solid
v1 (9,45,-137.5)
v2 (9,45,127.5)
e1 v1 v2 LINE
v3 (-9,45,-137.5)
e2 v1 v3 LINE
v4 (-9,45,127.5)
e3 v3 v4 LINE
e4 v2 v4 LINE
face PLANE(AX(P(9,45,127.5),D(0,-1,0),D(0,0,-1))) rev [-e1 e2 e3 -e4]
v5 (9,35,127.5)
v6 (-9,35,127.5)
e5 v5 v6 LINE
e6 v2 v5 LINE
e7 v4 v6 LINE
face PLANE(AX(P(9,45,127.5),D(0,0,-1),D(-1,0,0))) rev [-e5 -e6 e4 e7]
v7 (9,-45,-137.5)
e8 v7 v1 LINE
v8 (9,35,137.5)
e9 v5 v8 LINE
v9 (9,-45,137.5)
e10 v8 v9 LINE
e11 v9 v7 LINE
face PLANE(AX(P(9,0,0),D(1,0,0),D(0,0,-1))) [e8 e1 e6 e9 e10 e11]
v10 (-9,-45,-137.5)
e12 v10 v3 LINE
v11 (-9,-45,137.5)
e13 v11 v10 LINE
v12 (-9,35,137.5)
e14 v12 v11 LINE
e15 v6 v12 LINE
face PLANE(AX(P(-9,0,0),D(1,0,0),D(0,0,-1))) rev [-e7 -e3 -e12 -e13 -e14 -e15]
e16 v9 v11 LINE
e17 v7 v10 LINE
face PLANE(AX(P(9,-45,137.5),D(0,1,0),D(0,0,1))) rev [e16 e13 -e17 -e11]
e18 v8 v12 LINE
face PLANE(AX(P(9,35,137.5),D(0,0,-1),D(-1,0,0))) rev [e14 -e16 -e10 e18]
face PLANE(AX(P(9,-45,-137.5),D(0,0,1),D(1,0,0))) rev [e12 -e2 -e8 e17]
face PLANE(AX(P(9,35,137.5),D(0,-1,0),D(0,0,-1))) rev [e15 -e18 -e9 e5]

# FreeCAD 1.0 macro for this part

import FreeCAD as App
import Part
import Sketcher

V = App.Vector
Q = App.Units.Quantity

doc = App.newDocument("Part")
body = doc.addObject("PartDesign::Body", "Body")

# Sketch on YZ plane
sketch1 = doc.addObject("Sketcher::SketchObject", "Sketch")
body.addObject(sketch1)
sketch1.AttachmentSupport = (doc.YZ_Plane, [""])
sketch1.MapMode = "FlatFace"
sketch1.addGeometry(Part.LineSegment(V(35, 137.5, 0), V(-45, 137.5, 0)), False)
sketch1.addGeometry(Part.LineSegment(V(-45, 137.5, 0), V(-45, -137.5, 0)), False)
sketch1.addGeometry(Part.LineSegment(V(-45, -137.5, 0), V(45, -137.5, 0)), False)
sketch1.addGeometry(Part.LineSegment(V(45, -137.5, 0), V(45, 127.5, 0)), False)
sketch1.addGeometry(Part.LineSegment(V(45, 127.5, 0), V(35, 127.5, 0)), False)
sketch1.addGeometry(Part.LineSegment(V(35, 127.5, 0), V(35, 137.5, 0)), False)
sketch1.addConstraint(Sketcher.Constraint("Coincident", 0, 2, 1, 1))
sketch1.addConstraint(Sketcher.Constraint("Coincident", 1, 2, 2, 1))
sketch1.addConstraint(Sketcher.Constraint("Coincident", 2, 2, 3, 1))
sketch1.addConstraint(Sketcher.Constraint("Coincident", 3, 2, 4, 1))
sketch1.addConstraint(Sketcher.Constraint("Coincident", 4, 2, 5, 1))
sketch1.addConstraint(Sketcher.Constraint("Coincident", 5, 2, 0, 1))
sketch1.addConstraint(Sketcher.Constraint("Horizontal", 0))
sketch1.addConstraint(Sketcher.Constraint("Vertical", 1))
sketch1.addConstraint(Sketcher.Constraint("Horizontal", 2))
sketch1.addConstraint(Sketcher.Constraint("Vertical", 3))
sketch1.addConstraint(Sketcher.Constraint("Horizontal", 4))
sketch1.addConstraint(Sketcher.Constraint("Vertical", 5))
sketch1.addConstraint(Sketcher.Constraint("Symmetric", 0, 2, 2, 2, -1, 1))
sketch1.addConstraint(Sketcher.Constraint("Equal", 4, 5))
sketch1.addConstraint(Sketcher.Constraint("DistanceX", 0, 2, 0, 1, Q("80 mm")))
sketch1.addConstraint(Sketcher.Constraint("DistanceX", 2, 1, 2, 2, Q("90 mm")))
sketch1.addConstraint(Sketcher.Constraint("DistanceY", 1, 2, 1, 1, Q("275 mm")))
pad1 = doc.addObject("PartDesign::Pad", "Pad")
body.addObject(pad1)
pad1.Profile = sketch1
pad1.Length = 18
pad1.Midplane = True

doc.recompute()
